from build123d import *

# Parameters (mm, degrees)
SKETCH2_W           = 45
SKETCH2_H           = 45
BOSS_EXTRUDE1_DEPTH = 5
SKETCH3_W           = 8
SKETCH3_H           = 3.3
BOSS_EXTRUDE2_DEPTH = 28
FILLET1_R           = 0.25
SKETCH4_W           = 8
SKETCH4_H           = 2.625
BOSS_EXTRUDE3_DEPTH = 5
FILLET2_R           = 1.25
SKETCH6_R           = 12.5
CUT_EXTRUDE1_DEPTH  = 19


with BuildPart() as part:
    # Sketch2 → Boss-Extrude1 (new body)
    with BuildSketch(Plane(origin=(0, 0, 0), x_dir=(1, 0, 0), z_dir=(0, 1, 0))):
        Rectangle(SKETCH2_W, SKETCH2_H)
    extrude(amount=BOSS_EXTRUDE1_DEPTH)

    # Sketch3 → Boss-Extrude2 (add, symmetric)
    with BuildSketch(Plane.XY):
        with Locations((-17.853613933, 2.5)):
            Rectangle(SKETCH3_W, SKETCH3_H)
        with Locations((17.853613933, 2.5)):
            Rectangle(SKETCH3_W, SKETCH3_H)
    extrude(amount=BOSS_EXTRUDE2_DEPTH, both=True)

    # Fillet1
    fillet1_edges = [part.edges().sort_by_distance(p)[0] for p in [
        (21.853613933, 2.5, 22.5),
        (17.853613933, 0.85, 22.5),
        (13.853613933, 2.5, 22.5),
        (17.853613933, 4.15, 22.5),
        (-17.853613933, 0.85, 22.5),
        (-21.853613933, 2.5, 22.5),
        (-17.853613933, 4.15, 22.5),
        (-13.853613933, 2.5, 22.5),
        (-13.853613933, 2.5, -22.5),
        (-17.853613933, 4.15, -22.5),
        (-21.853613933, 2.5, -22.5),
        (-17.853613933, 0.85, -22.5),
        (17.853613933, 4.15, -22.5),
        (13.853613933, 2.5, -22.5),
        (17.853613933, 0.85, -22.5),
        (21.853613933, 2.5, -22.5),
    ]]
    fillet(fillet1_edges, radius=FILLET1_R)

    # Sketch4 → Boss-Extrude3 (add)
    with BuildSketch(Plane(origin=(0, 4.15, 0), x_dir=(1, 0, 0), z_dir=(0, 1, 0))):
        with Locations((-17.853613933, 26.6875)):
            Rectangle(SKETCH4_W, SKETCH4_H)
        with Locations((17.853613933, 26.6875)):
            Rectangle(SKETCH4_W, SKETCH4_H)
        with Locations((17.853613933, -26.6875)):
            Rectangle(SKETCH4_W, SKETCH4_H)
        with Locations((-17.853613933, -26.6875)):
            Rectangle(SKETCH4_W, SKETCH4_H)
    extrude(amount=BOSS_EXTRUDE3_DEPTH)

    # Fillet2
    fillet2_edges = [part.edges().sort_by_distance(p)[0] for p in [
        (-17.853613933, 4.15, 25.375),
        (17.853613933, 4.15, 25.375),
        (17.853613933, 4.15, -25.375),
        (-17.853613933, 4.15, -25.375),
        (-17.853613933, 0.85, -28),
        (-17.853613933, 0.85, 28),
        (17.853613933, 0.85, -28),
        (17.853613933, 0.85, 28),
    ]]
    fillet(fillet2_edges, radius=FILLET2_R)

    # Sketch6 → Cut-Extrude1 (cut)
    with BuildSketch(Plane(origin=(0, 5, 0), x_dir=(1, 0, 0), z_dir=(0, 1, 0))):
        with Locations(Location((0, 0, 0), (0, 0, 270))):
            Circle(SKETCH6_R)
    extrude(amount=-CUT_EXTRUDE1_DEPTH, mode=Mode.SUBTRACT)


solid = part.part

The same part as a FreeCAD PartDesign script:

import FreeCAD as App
import Part
import Sketcher


def edges_at(feature, points):
    """Names of the edges that pass closest to the given points."""
    edges = feature.Shape.Edges
    near = lambda p: min(range(len(edges)), key=lambda i: edges[i].distToShape(Part.Vertex(*p))[0])
    return sorted({f"Edge{near(p) + 1}" for p in points})

doc = App.newDocument("Part")
body = doc.addObject("PartDesign::Body", "Body")

# Sketch on XZ plane
sketch1 = body.newObject("Sketcher::SketchObject", "Sketch")
sketch1.AttachmentSupport = (doc.getObject("XZ_Plane"), [""])
sketch1.MapMode = "FlatFace"
sketch1.addGeometry([
    Part.LineSegment(App.Vector(-22, -22, 0), App.Vector(-22, 22, 0)),
    Part.LineSegment(App.Vector(-22, 22, 0), App.Vector(22, 22, 0)),
    Part.LineSegment(App.Vector(22, 22, 0), App.Vector(22, -22, 0)),
    Part.LineSegment(App.Vector(22, -22, 0), App.Vector(-22, -22, 0)),
], False)
sketch1.addConstraint([
    Sketcher.Constraint("Coincident", 0, 2, 1, 1),
    Sketcher.Constraint("Coincident", 1, 2, 2, 1),
    Sketcher.Constraint("Coincident", 2, 2, 3, 1),
    Sketcher.Constraint("Coincident", 3, 2, 0, 1),
    Sketcher.Constraint("Vertical", 0),
    Sketcher.Constraint("Horizontal", 1),
    Sketcher.Constraint("Vertical", 2),
    Sketcher.Constraint("Horizontal", 3),
    Sketcher.Constraint("Symmetric", 0, 2, 2, 2, -1, 1),
    Sketcher.Constraint("Equal", 3, 0),
    Sketcher.Constraint("DistanceX", 1, 1, 1, 2, 45.0),
])
pad1 = body.newObject("PartDesign::Pad", "Pad")
pad1.Profile = sketch1
pad1.Length = 5
pad1.Reversed = True

# Sketch on XY plane
sketch2 = body.newObject("Sketcher::SketchObject", "Sketch001")
sketch2.AttachmentSupport = (doc.getObject("XY_Plane"), [""])
sketch2.MapMode = "FlatFace"
sketch2.addGeometry([
    Part.LineSegment(App.Vector(-21.9, 4.2, 0), App.Vector(-21.9, 0.8, 0)),  # 0
    Part.LineSegment(App.Vector(-21.9, 0.8, 0), App.Vector(-13.9, 0.8, 0)),  # 1
    Part.LineSegment(App.Vector(-13.9, 0.8, 0), App.Vector(-13.9, 4.2, 0)),  # 2
    Part.LineSegment(App.Vector(-13.9, 4.2, 0), App.Vector(-21.9, 4.2, 0)),  # 3
    Part.LineSegment(App.Vector(13.9, 4.2, 0), App.Vector(13.9, 0.8, 0)),  # 4
    Part.LineSegment(App.Vector(13.9, 0.8, 0), App.Vector(21.9, 0.8, 0)),  # 5
    Part.LineSegment(App.Vector(21.9, 0.8, 0), App.Vector(21.9, 4.2, 0)),  # 6
    Part.LineSegment(App.Vector(21.9, 4.2, 0), App.Vector(13.9, 4.2, 0)),  # 7
], False)
sketch2.addConstraint([
    Sketcher.Constraint("Coincident", 0, 2, 1, 1),
    Sketcher.Constraint("Coincident", 1, 2, 2, 1),
    Sketcher.Constraint("Coincident", 2, 2, 3, 1),
    Sketcher.Constraint("Coincident", 3, 2, 0, 1),
    Sketcher.Constraint("Coincident", 4, 2, 5, 1),
    Sketcher.Constraint("Coincident", 5, 2, 6, 1),
    Sketcher.Constraint("Coincident", 6, 2, 7, 1),
    Sketcher.Constraint("Coincident", 7, 2, 4, 1),
    Sketcher.Constraint("Vertical", 0),
    Sketcher.Constraint("Horizontal", 1),
    Sketcher.Constraint("Vertical", 2),
    Sketcher.Constraint("Horizontal", 3),
    Sketcher.Constraint("Vertical", 4),
    Sketcher.Constraint("Horizontal", 5),
    Sketcher.Constraint("Vertical", 6),
    Sketcher.Constraint("Horizontal", 7),
    Sketcher.Constraint("Symmetric", 1, 2, 4, 2, -2),
    Sketcher.Constraint("Symmetric", 3, 2, 6, 2, -2),
    Sketcher.Constraint("DistanceX", 1, 1, 1, 2, 8.0),
    Sketcher.Constraint("DistanceY", 0, 2, 0, 1, 3.3),
    Sketcher.Constraint("DistanceY", -1, 1, 0, 2, 0.85),
    Sketcher.Constraint("DistanceX", 0, 2, -1, 1, 21.853614),
])
pad2 = body.newObject("PartDesign::Pad", "Pad001")
pad2.Profile = sketch2
pad2.Length = 56
pad2.Midplane = True
doc.recompute()

fillet = body.newObject("PartDesign::Fillet", "Fillet")
fillet.Base = (pad2, edges_at(pad2, [
    (21.854, 2.5, 22.5),
    (17.854, 0.85, 22.5),
    (13.854, 2.5, 22.5),
    (17.854, 4.15, 22.5),
    (-17.854, 0.85, 22.5),
    (-21.854, 2.5, 22.5),
    (-17.854, 4.15, 22.5),
    (-13.854, 2.5, 22.5),
    (-13.854, 2.5, -22.5),
    (-17.854, 4.15, -22.5),
    (-21.854, 2.5, -22.5),
    (-17.854, 0.85, -22.5),
    (17.854, 4.15, -22.5),
    (13.854, 2.5, -22.5),
    (17.854, 0.85, -22.5),
    (21.854, 2.5, -22.5),
]))
fillet.Radius = 0.25

# Sketch on XZ plane
sketch3 = body.newObject("Sketcher::SketchObject", "Sketch002")
sketch3.AttachmentSupport = (doc.getObject("XZ_Plane"), [""])
sketch3.MapMode = "FlatFace"
sketch3.AttachmentOffset = App.Placement(App.Vector(0, 0, -4.15), App.Rotation())
sketch3.addGeometry([
    Part.LineSegment(App.Vector(-21.9, -28, 0), App.Vector(-21.9, -25.4, 0)),  # 0
    Part.LineSegment(App.Vector(-21.9, -25.4, 0), App.Vector(-13.9, -25.4, 0)),  # 1
    Part.LineSegment(App.Vector(-13.9, -25.4, 0), App.Vector(-13.9, -28, 0)),  # 2
    Part.LineSegment(App.Vector(-13.9, -28, 0), App.Vector(-21.9, -28, 0)),  # 3
    Part.LineSegment(App.Vector(13.9, -28, 0), App.Vector(13.9, -25.4, 0)),  # 4
    Part.LineSegment(App.Vector(13.9, -25.4, 0), App.Vector(21.9, -25.4, 0)),  # 5
    Part.LineSegment(App.Vector(21.9, -25.4, 0), App.Vector(21.9, -28, 0)),  # 6
    Part.LineSegment(App.Vector(21.9, -28, 0), App.Vector(13.9, -28, 0)),  # 7
    Part.LineSegment(App.Vector(13.9, 25.4, 0), App.Vector(13.9, 28, 0)),  # 8
    Part.LineSegment(App.Vector(13.9, 28, 0), App.Vector(21.9, 28, 0)),  # 9
    Part.LineSegment(App.Vector(21.9, 28, 0), App.Vector(21.9, 25.4, 0)),  # 10
    Part.LineSegment(App.Vector(21.9, 25.4, 0), App.Vector(13.9, 25.4, 0)),  # 11
    Part.LineSegment(App.Vector(-21.9, 25.4, 0), App.Vector(-21.9, 28, 0)),  # 12
    Part.LineSegment(App.Vector(-21.9, 28, 0), App.Vector(-13.9, 28, 0)),  # 13
    Part.LineSegment(App.Vector(-13.9, 28, 0), App.Vector(-13.9, 25.4, 0)),  # 14
    Part.LineSegment(App.Vector(-13.9, 25.4, 0), App.Vector(-21.9, 25.4, 0)),  # 15
], False)
sketch3.addConstraint([
    Sketcher.Constraint("Coincident", 0, 2, 1, 1),
    Sketcher.Constraint("Coincident", 1, 2, 2, 1),
    Sketcher.Constraint("Coincident", 2, 2, 3, 1),
    Sketcher.Constraint("Coincident", 3, 2, 0, 1),
    Sketcher.Constraint("Coincident", 4, 2, 5, 1),
    Sketcher.Constraint("Coincident", 5, 2, 6, 1),
    Sketcher.Constraint("Coincident", 6, 2, 7, 1),
    Sketcher.Constraint("Coincident", 7, 2, 4, 1),
    Sketcher.Constraint("Coincident", 8, 2, 9, 1),
    Sketcher.Constraint("Coincident", 9, 2, 10, 1),
    Sketcher.Constraint("Coincident", 10, 2, 11, 1),
    Sketcher.Constraint("Coincident", 11, 2, 8, 1),
    Sketcher.Constraint("Coincident", 12, 2, 13, 1),
    Sketcher.Constraint("Coincident", 13, 2, 14, 1),
    Sketcher.Constraint("Coincident", 14, 2, 15, 1),
    Sketcher.Constraint("Coincident", 15, 2, 12, 1),
    Sketcher.Constraint("Vertical", 0),
    Sketcher.Constraint("Horizontal", 1),
    Sketcher.Constraint("Vertical", 2),
    Sketcher.Constraint("Horizontal", 3),
    Sketcher.Constraint("Vertical", 4),
    Sketcher.Constraint("Horizontal", 5),
    Sketcher.Constraint("Vertical", 6),
    Sketcher.Constraint("Horizontal", 7),
    Sketcher.Constraint("Vertical", 8),
    Sketcher.Constraint("Horizontal", 9),
    Sketcher.Constraint("Vertical", 10),
    Sketcher.Constraint("Horizontal", 11),
    Sketcher.Constraint("Vertical", 12),
    Sketcher.Constraint("Horizontal", 13),
    Sketcher.Constraint("Vertical", 14),
    Sketcher.Constraint("Horizontal", 15),
    Sketcher.Constraint("Symmetric", 2, 2, 8, 2, -1, 1),
    Sketcher.Constraint("Symmetric", 0, 2, 10, 2, -1, 1),
    Sketcher.Constraint("Symmetric", 6, 2, 12, 2, -1, 1),
    Sketcher.Constraint("Symmetric", 4, 2, 14, 2, -1, 1),
    Sketcher.Constraint("Symmetric", 1, 2, 4, 2, -2),
    Sketcher.Constraint("Symmetric", 3, 2, 6, 2, -2),
    Sketcher.Constraint("DistanceX", 1, 1, 1, 2, 8.0),
    Sketcher.Constraint("DistanceY", 2, 2, -1, 1, 28.0),
    Sketcher.Constraint("DistanceY", 0, 1, 0, 2, 2.625),
    Sketcher.Constraint("DistanceX", 0, 2, -1, 1, 21.853614),
])
pad3 = body.newObject("PartDesign::Pad", "Pad002")
pad3.Profile = sketch3
pad3.Length = 5
pad3.Reversed = True
doc.recompute()

fillet2 = body.newObject("PartDesign::Fillet", "Fillet001")
fillet2.Base = (pad3, edges_at(pad3, [
    (-17.854, 4.15, 25.375),
    (17.854, 4.15, 25.375),
    (17.854, 4.15, -25.375),
    (-17.854, 4.15, -25.375),
    (-17.854, 0.85, -28),
    (-17.854, 0.85, 28),
    (17.854, 0.85, -28),
    (17.854, 0.85, 28),
]))
fillet2.Radius = 1.25

# Sketch on XZ plane
sketch4 = body.newObject("Sketcher::SketchObject", "Sketch003")
sketch4.AttachmentSupport = (doc.getObject("XZ_Plane"), [""])
sketch4.MapMode = "FlatFace"
sketch4.AttachmentOffset = App.Placement(App.Vector(0, 0, -5), App.Rotation())
sketch4.addGeometry(Part.Circle(App.Vector(0, 0, 0), App.Vector(0, 0, 1), 12), False)
sketch4.addConstraint([
    Sketcher.Constraint("Coincident", 0, 3, -1, 1),
    Sketcher.Constraint("Diameter", 0, 25.0),
])
pocket1 = body.newObject("PartDesign::Pocket", "Pocket")
pocket1.Profile = sketch4
pocket1.Length = 19
pocket1.Reversed = True

doc.recompute()
